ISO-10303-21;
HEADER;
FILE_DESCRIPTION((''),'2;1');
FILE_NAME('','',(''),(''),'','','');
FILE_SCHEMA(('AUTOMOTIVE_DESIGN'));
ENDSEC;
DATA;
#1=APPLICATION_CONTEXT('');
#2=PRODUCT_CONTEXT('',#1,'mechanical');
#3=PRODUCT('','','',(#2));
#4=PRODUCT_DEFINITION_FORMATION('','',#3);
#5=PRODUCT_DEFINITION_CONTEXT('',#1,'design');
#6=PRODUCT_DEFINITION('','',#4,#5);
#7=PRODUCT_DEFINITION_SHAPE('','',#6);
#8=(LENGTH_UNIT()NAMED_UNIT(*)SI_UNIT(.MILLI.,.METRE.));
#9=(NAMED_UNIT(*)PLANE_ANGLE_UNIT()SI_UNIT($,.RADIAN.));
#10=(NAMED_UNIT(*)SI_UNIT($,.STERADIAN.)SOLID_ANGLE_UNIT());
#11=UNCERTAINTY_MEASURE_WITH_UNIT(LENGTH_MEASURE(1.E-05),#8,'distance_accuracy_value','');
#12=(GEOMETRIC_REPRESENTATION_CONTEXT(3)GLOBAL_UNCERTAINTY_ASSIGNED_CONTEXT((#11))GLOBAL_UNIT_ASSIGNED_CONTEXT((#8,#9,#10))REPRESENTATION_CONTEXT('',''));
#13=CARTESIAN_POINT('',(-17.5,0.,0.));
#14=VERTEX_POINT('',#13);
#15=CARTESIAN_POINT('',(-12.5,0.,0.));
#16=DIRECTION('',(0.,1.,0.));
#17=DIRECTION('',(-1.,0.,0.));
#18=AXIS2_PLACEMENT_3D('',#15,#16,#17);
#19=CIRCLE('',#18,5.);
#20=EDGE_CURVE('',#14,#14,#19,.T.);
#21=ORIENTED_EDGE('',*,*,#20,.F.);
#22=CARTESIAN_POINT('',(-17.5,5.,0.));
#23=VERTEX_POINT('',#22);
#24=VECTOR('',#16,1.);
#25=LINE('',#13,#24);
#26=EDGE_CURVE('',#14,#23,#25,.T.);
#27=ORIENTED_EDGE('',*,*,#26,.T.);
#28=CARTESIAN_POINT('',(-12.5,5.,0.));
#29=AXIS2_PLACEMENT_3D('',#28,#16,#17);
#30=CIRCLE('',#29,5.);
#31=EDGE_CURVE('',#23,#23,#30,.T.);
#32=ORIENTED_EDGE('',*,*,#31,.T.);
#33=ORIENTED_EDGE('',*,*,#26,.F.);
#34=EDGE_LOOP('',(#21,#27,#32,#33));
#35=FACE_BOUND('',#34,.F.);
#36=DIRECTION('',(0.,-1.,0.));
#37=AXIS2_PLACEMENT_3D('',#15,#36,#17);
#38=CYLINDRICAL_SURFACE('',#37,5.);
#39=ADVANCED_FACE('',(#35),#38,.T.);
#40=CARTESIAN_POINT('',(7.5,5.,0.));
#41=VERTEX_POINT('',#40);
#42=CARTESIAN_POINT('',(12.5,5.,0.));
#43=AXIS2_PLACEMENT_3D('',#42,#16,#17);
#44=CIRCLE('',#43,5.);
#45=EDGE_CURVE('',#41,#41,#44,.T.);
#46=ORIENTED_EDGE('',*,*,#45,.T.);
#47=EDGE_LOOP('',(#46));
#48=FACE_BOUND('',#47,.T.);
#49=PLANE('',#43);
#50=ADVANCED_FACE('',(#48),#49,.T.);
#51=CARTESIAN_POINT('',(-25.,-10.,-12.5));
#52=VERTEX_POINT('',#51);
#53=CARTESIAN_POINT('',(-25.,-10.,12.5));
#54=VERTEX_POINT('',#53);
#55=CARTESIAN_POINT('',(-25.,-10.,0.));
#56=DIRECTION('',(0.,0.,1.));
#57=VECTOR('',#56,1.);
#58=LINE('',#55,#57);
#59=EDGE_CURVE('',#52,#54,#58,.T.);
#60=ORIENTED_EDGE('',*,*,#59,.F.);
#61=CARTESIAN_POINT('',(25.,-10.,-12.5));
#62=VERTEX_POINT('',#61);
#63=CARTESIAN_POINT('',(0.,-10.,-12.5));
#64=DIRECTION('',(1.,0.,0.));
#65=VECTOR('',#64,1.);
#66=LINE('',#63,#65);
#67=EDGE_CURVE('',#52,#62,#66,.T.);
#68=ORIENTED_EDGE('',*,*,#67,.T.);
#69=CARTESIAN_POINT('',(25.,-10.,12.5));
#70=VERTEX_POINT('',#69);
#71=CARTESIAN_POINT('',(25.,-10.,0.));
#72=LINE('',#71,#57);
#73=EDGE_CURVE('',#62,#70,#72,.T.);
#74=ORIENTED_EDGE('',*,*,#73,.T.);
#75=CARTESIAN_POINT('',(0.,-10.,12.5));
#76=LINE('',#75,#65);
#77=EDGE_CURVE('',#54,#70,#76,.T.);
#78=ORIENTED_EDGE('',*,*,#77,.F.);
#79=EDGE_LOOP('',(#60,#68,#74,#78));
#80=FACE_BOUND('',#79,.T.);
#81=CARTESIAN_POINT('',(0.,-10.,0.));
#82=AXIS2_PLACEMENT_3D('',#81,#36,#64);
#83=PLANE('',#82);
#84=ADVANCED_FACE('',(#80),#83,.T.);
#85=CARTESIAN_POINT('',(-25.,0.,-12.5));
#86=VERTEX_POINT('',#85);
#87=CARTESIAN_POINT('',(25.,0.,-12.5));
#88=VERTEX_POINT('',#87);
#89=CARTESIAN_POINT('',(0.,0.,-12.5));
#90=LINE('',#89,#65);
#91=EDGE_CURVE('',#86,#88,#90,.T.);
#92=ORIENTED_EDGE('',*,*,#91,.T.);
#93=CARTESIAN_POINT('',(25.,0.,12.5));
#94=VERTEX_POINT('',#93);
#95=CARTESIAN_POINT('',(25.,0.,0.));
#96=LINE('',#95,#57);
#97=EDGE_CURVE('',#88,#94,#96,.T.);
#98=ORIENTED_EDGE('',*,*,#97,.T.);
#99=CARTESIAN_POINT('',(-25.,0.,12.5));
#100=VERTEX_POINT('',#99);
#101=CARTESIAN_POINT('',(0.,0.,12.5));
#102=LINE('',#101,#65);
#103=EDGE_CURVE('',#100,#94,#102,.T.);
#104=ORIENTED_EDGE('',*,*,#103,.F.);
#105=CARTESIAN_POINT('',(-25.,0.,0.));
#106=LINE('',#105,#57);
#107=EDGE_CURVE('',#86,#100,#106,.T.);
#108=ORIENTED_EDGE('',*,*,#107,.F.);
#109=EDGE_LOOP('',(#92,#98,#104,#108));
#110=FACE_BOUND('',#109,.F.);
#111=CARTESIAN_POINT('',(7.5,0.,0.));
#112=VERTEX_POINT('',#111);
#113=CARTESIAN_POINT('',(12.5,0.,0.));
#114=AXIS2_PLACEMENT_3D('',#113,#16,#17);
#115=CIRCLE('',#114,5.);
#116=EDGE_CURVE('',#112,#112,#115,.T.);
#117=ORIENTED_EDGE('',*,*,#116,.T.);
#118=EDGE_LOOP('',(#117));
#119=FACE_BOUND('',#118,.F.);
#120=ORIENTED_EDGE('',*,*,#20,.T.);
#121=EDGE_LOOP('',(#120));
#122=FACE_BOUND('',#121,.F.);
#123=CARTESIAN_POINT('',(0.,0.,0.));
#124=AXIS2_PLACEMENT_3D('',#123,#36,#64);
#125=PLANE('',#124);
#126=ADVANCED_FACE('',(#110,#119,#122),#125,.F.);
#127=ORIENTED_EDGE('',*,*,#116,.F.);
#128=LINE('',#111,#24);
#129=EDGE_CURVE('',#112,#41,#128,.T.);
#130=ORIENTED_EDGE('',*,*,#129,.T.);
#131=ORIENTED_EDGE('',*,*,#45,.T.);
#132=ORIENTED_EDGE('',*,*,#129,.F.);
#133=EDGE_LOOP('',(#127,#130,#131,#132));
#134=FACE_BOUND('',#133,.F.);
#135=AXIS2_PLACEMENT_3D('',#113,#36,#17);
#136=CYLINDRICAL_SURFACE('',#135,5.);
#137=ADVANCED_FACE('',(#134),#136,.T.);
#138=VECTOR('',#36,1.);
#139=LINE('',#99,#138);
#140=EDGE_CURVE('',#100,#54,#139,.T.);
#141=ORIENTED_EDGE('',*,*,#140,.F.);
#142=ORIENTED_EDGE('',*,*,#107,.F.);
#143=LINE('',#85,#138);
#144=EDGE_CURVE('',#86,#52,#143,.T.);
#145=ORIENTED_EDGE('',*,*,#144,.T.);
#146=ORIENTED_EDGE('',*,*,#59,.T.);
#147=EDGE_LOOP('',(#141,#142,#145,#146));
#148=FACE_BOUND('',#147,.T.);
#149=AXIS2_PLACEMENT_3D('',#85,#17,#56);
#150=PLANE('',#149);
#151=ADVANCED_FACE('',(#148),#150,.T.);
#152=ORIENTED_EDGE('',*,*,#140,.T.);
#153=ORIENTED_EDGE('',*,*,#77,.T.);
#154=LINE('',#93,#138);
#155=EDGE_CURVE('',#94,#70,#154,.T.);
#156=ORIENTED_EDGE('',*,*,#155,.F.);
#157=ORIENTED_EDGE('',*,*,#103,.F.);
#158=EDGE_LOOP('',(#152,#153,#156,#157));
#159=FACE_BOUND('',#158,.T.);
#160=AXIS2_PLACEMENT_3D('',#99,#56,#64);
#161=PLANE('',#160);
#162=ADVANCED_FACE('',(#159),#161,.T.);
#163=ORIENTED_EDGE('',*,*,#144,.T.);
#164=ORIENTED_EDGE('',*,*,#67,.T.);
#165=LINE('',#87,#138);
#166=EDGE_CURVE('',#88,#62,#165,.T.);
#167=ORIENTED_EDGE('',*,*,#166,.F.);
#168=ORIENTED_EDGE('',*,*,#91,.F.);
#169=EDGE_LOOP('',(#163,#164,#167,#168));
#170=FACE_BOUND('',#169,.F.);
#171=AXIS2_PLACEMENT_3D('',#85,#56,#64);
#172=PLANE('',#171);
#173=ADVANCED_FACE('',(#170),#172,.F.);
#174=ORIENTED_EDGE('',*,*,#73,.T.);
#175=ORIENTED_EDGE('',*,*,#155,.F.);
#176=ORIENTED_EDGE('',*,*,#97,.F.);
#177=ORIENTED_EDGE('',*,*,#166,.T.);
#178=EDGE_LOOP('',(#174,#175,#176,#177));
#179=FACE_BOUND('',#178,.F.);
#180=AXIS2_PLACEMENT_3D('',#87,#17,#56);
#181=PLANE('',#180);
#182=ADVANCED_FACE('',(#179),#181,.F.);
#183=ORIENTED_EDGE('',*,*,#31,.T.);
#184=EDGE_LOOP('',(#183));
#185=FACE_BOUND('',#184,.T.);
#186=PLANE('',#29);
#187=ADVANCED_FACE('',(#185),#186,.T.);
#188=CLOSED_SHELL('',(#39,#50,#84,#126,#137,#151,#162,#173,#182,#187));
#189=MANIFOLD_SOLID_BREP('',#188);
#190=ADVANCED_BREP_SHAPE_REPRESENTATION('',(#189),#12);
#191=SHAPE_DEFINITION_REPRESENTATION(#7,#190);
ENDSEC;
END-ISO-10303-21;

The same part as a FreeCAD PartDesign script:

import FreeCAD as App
import Part
import Sketcher

V = App.Vector
Q = App.Units.Quantity

doc = App.newDocument("Part")
params = doc.addObject("Spreadsheet::Sheet", "Params")
for row, (alias, value) in enumerate([
    ("sketch1_width", "50 mm"),
    ("sketch1_height", "25 mm"),
    ("pad1_length", "10 mm"),
    ("sketch2_diameter", "10 mm"),
    ("pad2_length", "5 mm"),
], start=1):
    params.set(f"A{row}", alias)
    params.set(f"B{row}", "=" + value)
    params.setAlias(f"B{row}", alias)

body = doc.addObject("PartDesign::Body", "Body")

# Sketch on XZ plane
sketch1 = body.newObject("Sketcher::SketchObject", "Sketch")
sketch1.AttachmentSupport = (doc.getObject("XZ_Plane"), [""])
sketch1.MapMode = "FlatFace"
sketch1.addGeometry(Part.LineSegment(V(-25, 12.5, 0), V(-25, -12.5, 0)), False)
sketch1.addGeometry(Part.LineSegment(V(-25, -12.5, 0), V(25, -12.5, 0)), False)
sketch1.addGeometry(Part.LineSegment(V(25, -12.5, 0), V(25, 12.5, 0)), False)
sketch1.addGeometry(Part.LineSegment(V(25, 12.5, 0), V(-25, 12.5, 0)), False)
sketch1.addConstraint(Sketcher.Constraint("Coincident", 0, 2, 1, 1))
sketch1.addConstraint(Sketcher.Constraint("Coincident", 1, 2, 2, 1))
sketch1.addConstraint(Sketcher.Constraint("Coincident", 2, 2, 3, 1))
sketch1.addConstraint(Sketcher.Constraint("Coincident", 3, 2, 0, 1))
sketch1.addConstraint(Sketcher.Constraint("Vertical", 0))
sketch1.addConstraint(Sketcher.Constraint("Horizontal", 1))
sketch1.addConstraint(Sketcher.Constraint("Vertical", 2))
sketch1.addConstraint(Sketcher.Constraint("Horizontal", 3))
sketch1.addConstraint(Sketcher.Constraint("Symmetric", 0, 2, 2, 2, -1, 1))
sketch1.addConstraint(Sketcher.Constraint("DistanceX", 1, 1, 1, 2, Q("50 mm")))
sketch1.addConstraint(Sketcher.Constraint("DistanceY", 0, 2, 0, 1, Q("25 mm")))
sketch1.setExpression("Constraints[9]", "Params.sketch1_width")
sketch1.setExpression("Constraints[10]", "Params.sketch1_height")
pad1 = body.newObject("PartDesign::Pad", "Pad")
pad1.Profile = sketch1
pad1.setExpression("Length", "Params.pad1_length")

# Sketch on XZ plane
sketch2 = body.newObject("Sketcher::SketchObject", "Sketch001")
sketch2.AttachmentSupport = (doc.getObject("XZ_Plane"), [""])
sketch2.MapMode = "FlatFace"
sketch2.addGeometry(Part.Circle(V(12.5, 0, 0), V(0, 0, 1), 5), False)
sketch2.addGeometry(Part.Circle(V(-12.5, 0, 0), V(0, 0, 1), 5), False)
sketch2.addConstraint(Sketcher.Constraint("Equal", 0, 1))
sketch2.addConstraint(Sketcher.Constraint("Symmetric", 0, 3, 1, 3, -1, 1))
sketch2.addConstraint(Sketcher.Constraint("PointOnObject", 0, 3, -1))
sketch2.addConstraint(Sketcher.Constraint("Diameter", 0, Q("10 mm")))
sketch2.addConstraint(Sketcher.Constraint("DistanceX", 1, 3, 0, 3, Q("25 mm")))
sketch2.setExpression("Constraints[3]", "Params.sketch2_diameter")
pad2 = body.newObject("PartDesign::Pad", "Pad001")
pad2.Profile = sketch2
pad2.setExpression("Length", "Params.pad2_length")
pad2.Reversed = True

doc.recompute()
